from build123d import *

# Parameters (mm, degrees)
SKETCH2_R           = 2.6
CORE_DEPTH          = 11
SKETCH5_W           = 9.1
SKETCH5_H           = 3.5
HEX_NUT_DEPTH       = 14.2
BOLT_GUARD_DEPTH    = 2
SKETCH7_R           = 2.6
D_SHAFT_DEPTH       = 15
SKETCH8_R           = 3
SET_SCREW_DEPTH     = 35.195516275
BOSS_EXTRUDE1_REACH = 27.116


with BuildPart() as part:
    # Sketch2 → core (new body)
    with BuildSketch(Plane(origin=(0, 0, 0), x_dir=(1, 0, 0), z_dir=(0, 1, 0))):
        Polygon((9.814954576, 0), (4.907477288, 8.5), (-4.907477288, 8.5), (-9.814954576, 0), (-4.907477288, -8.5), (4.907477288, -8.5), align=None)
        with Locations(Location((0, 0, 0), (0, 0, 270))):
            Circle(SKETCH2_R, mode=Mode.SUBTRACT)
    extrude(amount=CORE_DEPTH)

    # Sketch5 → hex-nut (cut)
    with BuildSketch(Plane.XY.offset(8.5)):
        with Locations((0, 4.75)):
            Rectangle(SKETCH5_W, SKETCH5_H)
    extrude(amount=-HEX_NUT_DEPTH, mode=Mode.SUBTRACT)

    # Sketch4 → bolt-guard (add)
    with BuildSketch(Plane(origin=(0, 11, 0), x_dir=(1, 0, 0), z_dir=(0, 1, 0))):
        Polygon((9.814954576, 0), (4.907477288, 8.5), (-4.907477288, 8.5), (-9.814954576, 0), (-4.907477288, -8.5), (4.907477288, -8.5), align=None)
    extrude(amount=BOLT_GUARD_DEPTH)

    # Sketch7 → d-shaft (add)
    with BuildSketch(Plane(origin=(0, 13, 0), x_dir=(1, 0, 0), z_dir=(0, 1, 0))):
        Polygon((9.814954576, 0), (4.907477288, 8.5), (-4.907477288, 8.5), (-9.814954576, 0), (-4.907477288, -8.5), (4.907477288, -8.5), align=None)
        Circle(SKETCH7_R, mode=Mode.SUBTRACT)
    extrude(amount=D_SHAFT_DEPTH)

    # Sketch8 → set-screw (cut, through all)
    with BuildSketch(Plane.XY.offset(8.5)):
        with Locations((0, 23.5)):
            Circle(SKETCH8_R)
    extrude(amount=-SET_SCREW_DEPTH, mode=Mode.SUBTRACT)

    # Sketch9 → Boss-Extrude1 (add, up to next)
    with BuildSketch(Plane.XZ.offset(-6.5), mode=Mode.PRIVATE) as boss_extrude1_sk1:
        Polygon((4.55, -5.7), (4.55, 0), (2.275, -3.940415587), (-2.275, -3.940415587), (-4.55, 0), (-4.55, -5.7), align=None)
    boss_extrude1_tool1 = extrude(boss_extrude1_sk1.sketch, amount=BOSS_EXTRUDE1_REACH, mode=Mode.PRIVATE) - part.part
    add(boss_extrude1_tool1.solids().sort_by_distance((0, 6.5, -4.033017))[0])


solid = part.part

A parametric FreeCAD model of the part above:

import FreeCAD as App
import Part
import Sketcher

V = App.Vector
Q = App.Units.Quantity


def add_polygon(sketch, points):
    """Adds a closed chain of lines whose ends are joined by coincident constraints."""
    first, n = sketch.GeometryCount, len(points)
    for a, b in zip(points, points[1:] + points[:1]):
        sketch.addGeometry(Part.LineSegment(App.Vector(*a, 0), App.Vector(*b, 0)), False)
    for i in range(n):
        sketch.addConstraint(Sketcher.Constraint("Coincident", first + i, 2, first + (i + 1) % n, 1))

doc = App.newDocument("Part")
body = doc.addObject("PartDesign::Body", "Body")

# Sketch on XZ plane
sketch1 = body.newObject("Sketcher::SketchObject", "Sketch")
sketch1.AttachmentSupport = (doc.getObject("XZ_Plane"), [""])
sketch1.MapMode = "FlatFace"
add_polygon(sketch1, [(9.8, 0), (4.9, -8.5), (-4.9, -8.5), (-9.8, 0), (-4.9, 8.5), (4.9, 8.5)])  # lines 0-5
sketch1.addGeometry(Part.Circle(V(0, 0, 0), V(0, 0, 1), 2.6), False)  # 6
sketch1.addConstraint(Sketcher.Constraint("Horizontal", 1))
sketch1.addConstraint(Sketcher.Constraint("Horizontal", 4))
sketch1.addConstraint(Sketcher.Constraint("Coincident", 6, 3, -1, 1))
sketch1.addConstraint(Sketcher.Constraint("Symmetric", 0, 2, 3, 2, -1, 1))
sketch1.addConstraint(Sketcher.Constraint("Symmetric", 2, 2, 5, 2, -1, 1))
sketch1.addConstraint(Sketcher.Constraint("PointOnObject", 2, 2, -1))
sketch1.addConstraint(Sketcher.Constraint("Parallel", 2, 5))
sketch1.addConstraint(Sketcher.Constraint("Vertical", 1, 2, 3, 2))
sketch1.addConstraint(Sketcher.Constraint("Diameter", 6, Q("5.2 mm")))
sketch1.addConstraint(Sketcher.Constraint("Angle", 0, Q("-120 deg")))
sketch1.addConstraint(Sketcher.Constraint("DistanceY", 1, 2, 3, 2, Q("17 mm")))
sketch1.addConstraint(Sketcher.Constraint("DistanceX", 1, 2, 1, 1, Q("9.814955 mm")))
pad1 = body.newObject("PartDesign::Pad", "Pad")
pad1.Profile = sketch1
pad1.Length = 11
pad1.Reversed = True

# Sketch on XY plane
sketch2 = body.newObject("Sketcher::SketchObject", "Sketch001")
sketch2.AttachmentSupport = (doc.getObject("XY_Plane"), [""])
sketch2.MapMode = "FlatFace"
sketch2.AttachmentOffset = App.Placement(V(0, 0, 8.5), App.Rotation())
add_polygon(sketch2, [(-4.5, 6.5), (-4.5, 3), (4.5, 3), (4.5, 6.5)])  # lines 0-3
sketch2.addConstraint(Sketcher.Constraint("Vertical", 0))
sketch2.addConstraint(Sketcher.Constraint("Horizontal", 1))
sketch2.addConstraint(Sketcher.Constraint("Vertical", 2))
sketch2.addConstraint(Sketcher.Constraint("Horizontal", 3))
sketch2.addConstraint(Sketcher.Constraint("DistanceX", 1, 1, 1, 2, Q("9.1 mm")))
sketch2.addConstraint(Sketcher.Constraint("DistanceY", 0, 2, 0, 1, Q("3.5 mm")))
sketch2.addConstraint(Sketcher.Constraint("DistanceY", -1, 1, 0, 2, Q("3 mm")))
sketch2.addConstraint(Sketcher.Constraint("DistanceX", 0, 2, -1, 1, Q("4.55 mm")))
pocket1 = body.newObject("PartDesign::Pocket", "Pocket")
pocket1.Profile = sketch2
pocket1.Length = 14.2

# Sketch on XZ plane
sketch3 = body.newObject("Sketcher::SketchObject", "Sketch002")
sketch3.AttachmentSupport = (doc.getObject("XZ_Plane"), [""])
sketch3.MapMode = "FlatFace"
sketch3.AttachmentOffset = App.Placement(V(0, 0, -11), App.Rotation())
add_polygon(sketch3, [(10, 0), (5, -8), (-5, -8), (-10, 0), (-5, 8), (5, 8)])  # lines 0-5
sketch3.addConstraint(Sketcher.Constraint("Horizontal", 1))
sketch3.addConstraint(Sketcher.Constraint("Horizontal", 4))
sketch3.addConstraint(Sketcher.Constraint("Symmetric", 0, 2, 3, 2, -1, 1))
sketch3.addConstraint(Sketcher.Constraint("Symmetric", 2, 2, 5, 2, -1, 1))
sketch3.addConstraint(Sketcher.Constraint("PointOnObject", 2, 2, -1))
sketch3.addConstraint(Sketcher.Constraint("Parallel", 2, 5))
sketch3.addConstraint(Sketcher.Constraint("Vertical", 1, 2, 3, 2))
sketch3.addConstraint(Sketcher.Constraint("Angle", 0, Q("-120 deg")))
sketch3.addConstraint(Sketcher.Constraint("DistanceY", 1, 2, 3, 2, Q("17 mm")))
sketch3.addConstraint(Sketcher.Constraint("DistanceX", 1, 2, 1, 1, Q("9.814955 mm")))
pad2 = body.newObject("PartDesign::Pad", "Pad001")
pad2.Profile = sketch3
pad2.Length = 2
pad2.Reversed = True

# Sketch on XZ plane
sketch4 = body.newObject("Sketcher::SketchObject", "Sketch003")
sketch4.AttachmentSupport = (doc.getObject("XZ_Plane"), [""])
sketch4.MapMode = "FlatFace"
sketch4.AttachmentOffset = App.Placement(V(0, 0, -13), App.Rotation())
add_polygon(sketch4, [(9.8, 0), (4.9, -8.5), (-4.9, -8.5), (-9.8, 0), (-4.9, 8.5), (4.9, 8.5)])  # lines 0-5
sketch4.addGeometry(Part.Circle(V(0, 0, 0), V(0, 0, 1), 2.6), False)  # 6
sketch4.addConstraint(Sketcher.Constraint("Horizontal", 1))
sketch4.addConstraint(Sketcher.Constraint("Horizontal", 4))
sketch4.addConstraint(Sketcher.Constraint("Coincident", 6, 3, -1, 1))
sketch4.addConstraint(Sketcher.Constraint("Symmetric", 0, 2, 3, 2, -1, 1))
sketch4.addConstraint(Sketcher.Constraint("Symmetric", 2, 2, 5, 2, -1, 1))
sketch4.addConstraint(Sketcher.Constraint("PointOnObject", 2, 2, -1))
sketch4.addConstraint(Sketcher.Constraint("Parallel", 2, 5))
sketch4.addConstraint(Sketcher.Constraint("Vertical", 1, 2, 3, 2))
sketch4.addConstraint(Sketcher.Constraint("Diameter", 6, Q("5.2 mm")))
sketch4.addConstraint(Sketcher.Constraint("Angle", 0, Q("-120 deg")))
sketch4.addConstraint(Sketcher.Constraint("DistanceY", 1, 2, 3, 2, Q("17 mm")))
sketch4.addConstraint(Sketcher.Constraint("DistanceX", 1, 2, 1, 1, Q("9.814955 mm")))
pad3 = body.newObject("PartDesign::Pad", "Pad002")
pad3.Profile = sketch4
pad3.Length = 15
pad3.Reversed = True

# Sketch on XY plane
sketch5 = body.newObject("Sketcher::SketchObject", "Sketch004")
sketch5.AttachmentSupport = (doc.getObject("XY_Plane"), [""])
sketch5.MapMode = "FlatFace"
sketch5.AttachmentOffset = App.Placement(V(0, 0, 8.5), App.Rotation())
sketch5.addGeometry(Part.Circle(V(0, 23.5, 0), V(0, 0, 1), 3), False)
sketch5.addConstraint(Sketcher.Constraint("PointOnObject", 0, 3, -2))
sketch5.addConstraint(Sketcher.Constraint("Diameter", 0, Q("6 mm")))
sketch5.addConstraint(Sketcher.Constraint("DistanceY", -1, 1, 0, 3, Q("23.5 mm")))
pocket2 = body.newObject("PartDesign::Pocket", "Pocket001")
pocket2.Profile = sketch5
pocket2.Type = "ThroughAll"

# Sketch on XZ plane
sketch6 = body.newObject("Sketcher::SketchObject", "Sketch005")
sketch6.AttachmentSupport = (doc.getObject("XZ_Plane"), [""])
sketch6.MapMode = "FlatFace"
sketch6.AttachmentOffset = App.Placement(V(0, 0, -6.5), App.Rotation())
add_polygon(sketch6, [(4.5, -5.7), (4.5, 0), (2.3, -3.9), (-2.3, -3.9), (-4.5, 0), (-4.5, -5.7)])  # lines 0-5
sketch6.addConstraint(Sketcher.Constraint("Vertical", 0))
sketch6.addConstraint(Sketcher.Constraint("Horizontal", 2))
sketch6.addConstraint(Sketcher.Constraint("Vertical", 4))
sketch6.addConstraint(Sketcher.Constraint("Horizontal", 5))
sketch6.addConstraint(Sketcher.Constraint("Symmetric", 0, 2, 3, 2, -1, 1))
sketch6.addConstraint(Sketcher.Constraint("PointOnObject", 0, 2, -1))
sketch6.addConstraint(Sketcher.Constraint("Equal", 1, 3))
sketch6.addConstraint(Sketcher.Constraint("Angle", 1, Q("-120 deg")))
sketch6.addConstraint(Sketcher.Constraint("DistanceX", 5, 1, 5, 2, Q("9.1 mm")))
sketch6.addConstraint(Sketcher.Constraint("DistanceY", 0, 1, 0, 2, Q("5.7 mm")))
sketch6.addConstraint(Sketcher.Constraint("DistanceX", 2, 2, 2, 1, Q("4.55 mm")))
pad4 = body.newObject("PartDesign::Pad", "Pad003")
pad4.Profile = sketch6
pad4.Type = "UpToFirst"

doc.recompute()
